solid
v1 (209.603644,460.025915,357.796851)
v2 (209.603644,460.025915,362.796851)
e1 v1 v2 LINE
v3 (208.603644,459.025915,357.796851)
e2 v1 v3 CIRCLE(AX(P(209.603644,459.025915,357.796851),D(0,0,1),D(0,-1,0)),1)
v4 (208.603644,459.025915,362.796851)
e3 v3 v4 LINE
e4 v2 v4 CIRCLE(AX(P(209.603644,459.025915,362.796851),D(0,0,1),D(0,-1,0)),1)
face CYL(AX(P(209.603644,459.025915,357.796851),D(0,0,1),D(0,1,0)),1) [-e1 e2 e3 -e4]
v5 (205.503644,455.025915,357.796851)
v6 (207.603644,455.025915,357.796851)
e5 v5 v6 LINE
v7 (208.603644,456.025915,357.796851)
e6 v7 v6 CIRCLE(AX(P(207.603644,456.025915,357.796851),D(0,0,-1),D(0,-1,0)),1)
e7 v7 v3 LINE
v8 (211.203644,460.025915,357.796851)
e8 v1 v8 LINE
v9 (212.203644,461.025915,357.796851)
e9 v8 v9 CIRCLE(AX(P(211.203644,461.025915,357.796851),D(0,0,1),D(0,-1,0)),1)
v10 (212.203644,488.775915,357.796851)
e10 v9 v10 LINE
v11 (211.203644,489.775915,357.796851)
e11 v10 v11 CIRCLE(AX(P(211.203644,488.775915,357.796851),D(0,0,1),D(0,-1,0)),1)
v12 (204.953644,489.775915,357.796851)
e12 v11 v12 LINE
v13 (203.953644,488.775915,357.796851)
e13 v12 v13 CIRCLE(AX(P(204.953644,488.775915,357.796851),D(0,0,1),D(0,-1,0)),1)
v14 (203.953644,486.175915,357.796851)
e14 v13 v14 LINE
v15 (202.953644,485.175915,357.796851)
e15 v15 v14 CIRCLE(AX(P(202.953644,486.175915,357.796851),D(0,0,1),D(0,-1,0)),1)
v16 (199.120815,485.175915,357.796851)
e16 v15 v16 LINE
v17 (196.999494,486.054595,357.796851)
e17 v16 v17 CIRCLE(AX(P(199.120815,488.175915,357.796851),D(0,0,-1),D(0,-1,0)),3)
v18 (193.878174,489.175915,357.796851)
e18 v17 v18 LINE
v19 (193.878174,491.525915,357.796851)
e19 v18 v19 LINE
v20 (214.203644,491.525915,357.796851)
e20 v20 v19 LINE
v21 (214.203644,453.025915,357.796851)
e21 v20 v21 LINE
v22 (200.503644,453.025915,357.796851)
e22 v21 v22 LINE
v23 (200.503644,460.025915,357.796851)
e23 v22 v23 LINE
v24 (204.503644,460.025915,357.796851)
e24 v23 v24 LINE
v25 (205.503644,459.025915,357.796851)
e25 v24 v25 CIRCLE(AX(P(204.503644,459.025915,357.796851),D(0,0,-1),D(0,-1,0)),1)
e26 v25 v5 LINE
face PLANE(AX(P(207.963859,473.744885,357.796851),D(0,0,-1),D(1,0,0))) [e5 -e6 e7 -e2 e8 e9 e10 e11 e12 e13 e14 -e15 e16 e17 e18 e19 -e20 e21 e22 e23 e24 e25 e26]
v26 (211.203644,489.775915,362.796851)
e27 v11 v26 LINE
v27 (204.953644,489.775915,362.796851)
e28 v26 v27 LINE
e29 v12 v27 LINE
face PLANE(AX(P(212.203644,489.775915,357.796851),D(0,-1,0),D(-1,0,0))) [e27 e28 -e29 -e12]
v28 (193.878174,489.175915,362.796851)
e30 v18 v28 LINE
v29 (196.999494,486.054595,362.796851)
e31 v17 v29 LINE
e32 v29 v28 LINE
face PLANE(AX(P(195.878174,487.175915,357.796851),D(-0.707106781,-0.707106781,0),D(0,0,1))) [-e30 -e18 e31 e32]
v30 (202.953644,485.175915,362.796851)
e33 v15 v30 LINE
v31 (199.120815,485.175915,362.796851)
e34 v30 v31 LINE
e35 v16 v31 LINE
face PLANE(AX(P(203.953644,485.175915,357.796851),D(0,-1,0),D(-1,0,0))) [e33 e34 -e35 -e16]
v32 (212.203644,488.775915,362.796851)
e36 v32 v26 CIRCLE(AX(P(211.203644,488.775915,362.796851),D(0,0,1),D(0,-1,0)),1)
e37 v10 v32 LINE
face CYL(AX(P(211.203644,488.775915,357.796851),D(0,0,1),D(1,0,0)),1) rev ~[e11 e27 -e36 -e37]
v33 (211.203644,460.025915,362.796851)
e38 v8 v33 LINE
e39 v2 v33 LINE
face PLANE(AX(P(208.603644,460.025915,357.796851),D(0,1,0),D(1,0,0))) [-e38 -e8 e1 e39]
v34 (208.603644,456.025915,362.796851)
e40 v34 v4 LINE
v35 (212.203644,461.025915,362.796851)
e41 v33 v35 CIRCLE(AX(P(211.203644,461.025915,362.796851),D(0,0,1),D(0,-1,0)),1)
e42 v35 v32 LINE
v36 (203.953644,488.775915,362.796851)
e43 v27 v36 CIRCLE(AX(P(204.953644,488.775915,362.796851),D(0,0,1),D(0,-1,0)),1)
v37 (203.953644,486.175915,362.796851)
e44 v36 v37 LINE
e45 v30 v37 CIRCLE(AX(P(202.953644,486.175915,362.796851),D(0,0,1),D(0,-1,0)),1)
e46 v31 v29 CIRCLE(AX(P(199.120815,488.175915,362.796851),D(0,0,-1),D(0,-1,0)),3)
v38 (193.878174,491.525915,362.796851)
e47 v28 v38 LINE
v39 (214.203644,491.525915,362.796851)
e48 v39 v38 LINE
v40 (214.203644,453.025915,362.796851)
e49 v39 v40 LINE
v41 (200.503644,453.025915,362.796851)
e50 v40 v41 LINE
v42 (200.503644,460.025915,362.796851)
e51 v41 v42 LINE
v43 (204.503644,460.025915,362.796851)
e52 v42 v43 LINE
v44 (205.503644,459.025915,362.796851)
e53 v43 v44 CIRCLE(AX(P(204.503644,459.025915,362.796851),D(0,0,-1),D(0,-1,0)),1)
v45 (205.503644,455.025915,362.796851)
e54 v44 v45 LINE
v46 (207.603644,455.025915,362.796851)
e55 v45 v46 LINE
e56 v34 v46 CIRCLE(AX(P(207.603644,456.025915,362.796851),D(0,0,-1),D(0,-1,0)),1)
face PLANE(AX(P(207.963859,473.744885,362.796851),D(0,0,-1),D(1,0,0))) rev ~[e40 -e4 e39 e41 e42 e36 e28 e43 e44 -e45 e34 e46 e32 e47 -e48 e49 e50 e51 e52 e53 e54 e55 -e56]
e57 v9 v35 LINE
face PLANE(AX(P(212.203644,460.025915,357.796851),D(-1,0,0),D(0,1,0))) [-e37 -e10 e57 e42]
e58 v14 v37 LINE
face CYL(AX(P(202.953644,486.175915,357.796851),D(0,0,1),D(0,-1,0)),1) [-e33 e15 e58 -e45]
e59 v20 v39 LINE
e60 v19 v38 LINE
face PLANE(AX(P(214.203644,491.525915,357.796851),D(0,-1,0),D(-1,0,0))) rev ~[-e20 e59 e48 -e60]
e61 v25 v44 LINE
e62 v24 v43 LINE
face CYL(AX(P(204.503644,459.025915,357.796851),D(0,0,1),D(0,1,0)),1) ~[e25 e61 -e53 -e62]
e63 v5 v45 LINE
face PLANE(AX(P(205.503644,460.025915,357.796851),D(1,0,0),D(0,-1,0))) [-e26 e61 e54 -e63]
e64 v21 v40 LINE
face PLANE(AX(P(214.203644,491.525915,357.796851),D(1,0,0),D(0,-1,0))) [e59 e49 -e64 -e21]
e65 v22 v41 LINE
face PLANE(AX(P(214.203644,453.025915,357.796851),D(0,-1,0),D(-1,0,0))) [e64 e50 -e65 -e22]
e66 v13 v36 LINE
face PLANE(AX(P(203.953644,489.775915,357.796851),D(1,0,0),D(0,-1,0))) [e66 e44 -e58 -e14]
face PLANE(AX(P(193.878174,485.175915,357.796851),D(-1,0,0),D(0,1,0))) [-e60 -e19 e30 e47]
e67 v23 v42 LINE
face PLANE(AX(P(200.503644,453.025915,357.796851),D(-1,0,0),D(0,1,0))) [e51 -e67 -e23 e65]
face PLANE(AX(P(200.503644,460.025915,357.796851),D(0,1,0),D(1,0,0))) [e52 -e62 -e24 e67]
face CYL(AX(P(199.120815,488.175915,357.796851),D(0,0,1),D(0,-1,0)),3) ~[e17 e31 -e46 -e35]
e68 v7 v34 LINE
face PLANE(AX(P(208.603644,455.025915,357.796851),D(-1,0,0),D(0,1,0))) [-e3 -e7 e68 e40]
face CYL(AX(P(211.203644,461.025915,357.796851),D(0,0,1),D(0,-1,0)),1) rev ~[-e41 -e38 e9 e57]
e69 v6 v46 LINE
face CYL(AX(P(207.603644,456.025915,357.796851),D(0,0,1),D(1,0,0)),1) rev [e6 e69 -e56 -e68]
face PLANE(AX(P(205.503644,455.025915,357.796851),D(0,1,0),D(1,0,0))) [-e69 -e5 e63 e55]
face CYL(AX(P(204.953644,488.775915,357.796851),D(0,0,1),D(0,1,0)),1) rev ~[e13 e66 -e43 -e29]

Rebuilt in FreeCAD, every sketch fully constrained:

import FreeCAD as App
import Part
import Sketcher

V = App.Vector


def edges_at(feature, points):
    """Names of the edges that pass closest to the given points."""
    edges = feature.Shape.Edges
    near = lambda p: min(range(len(edges)), key=lambda i: edges[i].distToShape(Part.Vertex(*p))[0])
    return sorted({f"Edge{near(p) + 1}" for p in points})

doc = App.newDocument("Part")
params = doc.addObject("Spreadsheet::Sheet", "Params")
for row, (alias, value) in enumerate([
    ("sketch1_width", "5 mm"),
    ("sketch1_height", "7 mm"),
    ("sketch1_width2", "3.6 mm"),
    ("sketch1_width3", "3.1 mm"),
    ("sketch1_width4", "13.7 mm"),
    ("pad1_length", "5 mm"),
    ("fillet_radius", "1 mm"),
    ("fillet2_radius", "1 mm"),
    ("chamfer_size", "4 mm"),
    ("fillet3_radius", "3 mm"),
    ("fillet4_radius", "1 mm"),
], start=1):
    params.set(f"A{row}", alias)
    params.set(f"B{row}", "=" + value)
    params.setAlias(f"B{row}", alias)

body = doc.addObject("PartDesign::Body", "Body")

sketch1 = doc.addObject("Sketcher::SketchObject", "Sketch")
body.addObject(sketch1)
sketch1.AttachmentSupport = (doc.XY_Plane, [""])
sketch1.MapMode = "FlatFace"
sketch1.AttachmentOffset = App.Placement(V(0, 0, 357.796851), App.Rotation())
sketch1.addGeometry([
    Part.LineSegment(V(212.203644, 460.025915, 0), V(208.603644, 460.025915, 0)),
    Part.LineSegment(V(208.603644, 460.025915, 0), V(208.603644, 455.025915, 0)),
    Part.LineSegment(V(208.603644, 455.025915, 0), V(205.503644, 455.025915, 0)),
    Part.LineSegment(V(205.503644, 455.025915, 0), V(205.503644, 460.025915, 0)),
    Part.LineSegment(V(205.503644, 460.025915, 0), V(200.503644, 460.025915, 0)),
    Part.LineSegment(V(200.503644, 460.025915, 0), V(200.503644, 453.025915, 0)),
    Part.LineSegment(V(200.503644, 453.025915, 0), V(214.203644, 453.025915, 0)),
    Part.LineSegment(V(214.203644, 453.025915, 0), V(214.203644, 491.525915, 0)),
    Part.LineSegment(V(214.203644, 491.525915, 0), V(193.878174, 491.525915, 0)),
    Part.LineSegment(V(193.878174, 491.525915, 0), V(193.878174, 485.175915, 0)),
    Part.LineSegment(V(193.878174, 485.175915, 0), V(203.953644, 485.175915, 0)),
    Part.LineSegment(V(203.953644, 485.175915, 0), V(203.953644, 489.775915, 0)),
    Part.LineSegment(V(203.953644, 489.775915, 0), V(212.203644, 489.775915, 0)),
    Part.LineSegment(V(212.203644, 489.775915, 0), V(212.203644, 460.025915, 0)),
], False)
sketch1.addConstraint([
    Sketcher.Constraint("Coincident", 0, 2, 1, 1),
    Sketcher.Constraint("Coincident", 1, 2, 2, 1),
    Sketcher.Constraint("Coincident", 2, 2, 3, 1),
    Sketcher.Constraint("Coincident", 3, 2, 4, 1),
    Sketcher.Constraint("Coincident", 4, 2, 5, 1),
    Sketcher.Constraint("Coincident", 5, 2, 6, 1),
    Sketcher.Constraint("Coincident", 6, 2, 7, 1),
    Sketcher.Constraint("Coincident", 7, 2, 8, 1),
    Sketcher.Constraint("Coincident", 8, 2, 9, 1),
    Sketcher.Constraint("Coincident", 9, 2, 10, 1),
    Sketcher.Constraint("Coincident", 10, 2, 11, 1),
    Sketcher.Constraint("Coincident", 11, 2, 12, 1),
    Sketcher.Constraint("Coincident", 12, 2, 13, 1),
    Sketcher.Constraint("Coincident", 13, 2, 0, 1),
    Sketcher.Constraint("Horizontal", 0),
    Sketcher.Constraint("Vertical", 1),
    Sketcher.Constraint("Horizontal", 2),
    Sketcher.Constraint("Vertical", 3),
    Sketcher.Constraint("Horizontal", 4),
    Sketcher.Constraint("Vertical", 5),
    Sketcher.Constraint("Horizontal", 6),
    Sketcher.Constraint("Vertical", 7),
    Sketcher.Constraint("Horizontal", 8),
    Sketcher.Constraint("Vertical", 9),
    Sketcher.Constraint("Horizontal", 10),
    Sketcher.Constraint("Vertical", 11),
    Sketcher.Constraint("Horizontal", 12),
    Sketcher.Constraint("Vertical", 13),
    Sketcher.Constraint("Horizontal", 0, 2, 3, 2),
    Sketcher.Constraint("Equal", 4, 1),
    Sketcher.Constraint("DistanceX", 4, 2, 4, 1, 5.0),
    Sketcher.Constraint("DistanceY", 5, 2, 5, 1, 7.0),
    Sketcher.Constraint("DistanceX", 0, 2, 0, 1, 3.6),
    Sketcher.Constraint("DistanceX", 2, 2, 2, 1, 3.1),
    Sketcher.Constraint("DistanceX", 6, 1, 6, 2, 13.7),
    Sketcher.Constraint("DistanceY", 7, 1, 7, 2, 38.5),
    Sketcher.Constraint("DistanceY", 11, 1, 11, 2, 4.6),
    Sketcher.Constraint("DistanceX", 12, 1, 12, 2, 8.25),
    Sketcher.Constraint("DistanceY", 9, 2, 9, 1, 6.35),
    Sketcher.Constraint("DistanceX", 8, 2, 8, 1, 20.32547),
    Sketcher.Constraint("DistanceX", -1, 1, 0, 2, 208.603644),
    Sketcher.Constraint("DistanceY", -1, 1, 0, 2, 460.025915),
])
sketch1.setExpression("Constraints[30]", "Params.sketch1_width")
sketch1.setExpression("Constraints[31]", "Params.sketch1_height")
sketch1.setExpression("Constraints[32]", "Params.sketch1_width2")
sketch1.setExpression("Constraints[33]", "Params.sketch1_width3")
sketch1.setExpression("Constraints[34]", "Params.sketch1_width4")
pad1 = doc.addObject("PartDesign::Pad", "Pad")
body.addObject(pad1)
pad1.Profile = sketch1
pad1.setExpression("Length", "Params.pad1_length")
doc.recompute()

fillet = doc.addObject("PartDesign::Fillet", "Fillet")
body.addObject(fillet)
fillet.Base = (pad1, edges_at(pad1, [
    (203.954, 489.776, 360.297),
    (212.204, 489.776, 360.297),
    (212.204, 460.026, 360.297),
    (205.504, 460.026, 360.297),
]))
fillet.setExpression("Radius", "Params.fillet_radius")
doc.recompute()

fillet2 = doc.addObject("PartDesign::Fillet", "Fillet001")
body.addObject(fillet2)
fillet2.Base = (fillet, edges_at(fillet, [(208.604, 460.026, 360.297), (208.604, 455.026, 360.297)]))
fillet2.setExpression("Radius", "Params.fillet2_radius")
doc.recompute()

chamfer = doc.addObject("PartDesign::Chamfer", "Chamfer")
body.addObject(chamfer)
chamfer.Base = (fillet2, edges_at(fillet2, [(193.878, 485.176, 360.297)]))
chamfer.setExpression("Size", "Params.chamfer_size")
doc.recompute()

fillet3 = doc.addObject("PartDesign::Fillet", "Fillet002")
body.addObject(fillet3)
fillet3.Base = (chamfer, edges_at(chamfer, [(197.878, 485.176, 360.297)]))
fillet3.setExpression("Radius", "Params.fillet3_radius")
doc.recompute()

fillet4 = doc.addObject("PartDesign::Fillet", "Fillet003")
body.addObject(fillet4)
fillet4.Base = (fillet3, edges_at(fillet3, [(203.954, 485.176, 360.297)]))
fillet4.setExpression("Radius", "Params.fillet4_radius")

doc.recompute()
